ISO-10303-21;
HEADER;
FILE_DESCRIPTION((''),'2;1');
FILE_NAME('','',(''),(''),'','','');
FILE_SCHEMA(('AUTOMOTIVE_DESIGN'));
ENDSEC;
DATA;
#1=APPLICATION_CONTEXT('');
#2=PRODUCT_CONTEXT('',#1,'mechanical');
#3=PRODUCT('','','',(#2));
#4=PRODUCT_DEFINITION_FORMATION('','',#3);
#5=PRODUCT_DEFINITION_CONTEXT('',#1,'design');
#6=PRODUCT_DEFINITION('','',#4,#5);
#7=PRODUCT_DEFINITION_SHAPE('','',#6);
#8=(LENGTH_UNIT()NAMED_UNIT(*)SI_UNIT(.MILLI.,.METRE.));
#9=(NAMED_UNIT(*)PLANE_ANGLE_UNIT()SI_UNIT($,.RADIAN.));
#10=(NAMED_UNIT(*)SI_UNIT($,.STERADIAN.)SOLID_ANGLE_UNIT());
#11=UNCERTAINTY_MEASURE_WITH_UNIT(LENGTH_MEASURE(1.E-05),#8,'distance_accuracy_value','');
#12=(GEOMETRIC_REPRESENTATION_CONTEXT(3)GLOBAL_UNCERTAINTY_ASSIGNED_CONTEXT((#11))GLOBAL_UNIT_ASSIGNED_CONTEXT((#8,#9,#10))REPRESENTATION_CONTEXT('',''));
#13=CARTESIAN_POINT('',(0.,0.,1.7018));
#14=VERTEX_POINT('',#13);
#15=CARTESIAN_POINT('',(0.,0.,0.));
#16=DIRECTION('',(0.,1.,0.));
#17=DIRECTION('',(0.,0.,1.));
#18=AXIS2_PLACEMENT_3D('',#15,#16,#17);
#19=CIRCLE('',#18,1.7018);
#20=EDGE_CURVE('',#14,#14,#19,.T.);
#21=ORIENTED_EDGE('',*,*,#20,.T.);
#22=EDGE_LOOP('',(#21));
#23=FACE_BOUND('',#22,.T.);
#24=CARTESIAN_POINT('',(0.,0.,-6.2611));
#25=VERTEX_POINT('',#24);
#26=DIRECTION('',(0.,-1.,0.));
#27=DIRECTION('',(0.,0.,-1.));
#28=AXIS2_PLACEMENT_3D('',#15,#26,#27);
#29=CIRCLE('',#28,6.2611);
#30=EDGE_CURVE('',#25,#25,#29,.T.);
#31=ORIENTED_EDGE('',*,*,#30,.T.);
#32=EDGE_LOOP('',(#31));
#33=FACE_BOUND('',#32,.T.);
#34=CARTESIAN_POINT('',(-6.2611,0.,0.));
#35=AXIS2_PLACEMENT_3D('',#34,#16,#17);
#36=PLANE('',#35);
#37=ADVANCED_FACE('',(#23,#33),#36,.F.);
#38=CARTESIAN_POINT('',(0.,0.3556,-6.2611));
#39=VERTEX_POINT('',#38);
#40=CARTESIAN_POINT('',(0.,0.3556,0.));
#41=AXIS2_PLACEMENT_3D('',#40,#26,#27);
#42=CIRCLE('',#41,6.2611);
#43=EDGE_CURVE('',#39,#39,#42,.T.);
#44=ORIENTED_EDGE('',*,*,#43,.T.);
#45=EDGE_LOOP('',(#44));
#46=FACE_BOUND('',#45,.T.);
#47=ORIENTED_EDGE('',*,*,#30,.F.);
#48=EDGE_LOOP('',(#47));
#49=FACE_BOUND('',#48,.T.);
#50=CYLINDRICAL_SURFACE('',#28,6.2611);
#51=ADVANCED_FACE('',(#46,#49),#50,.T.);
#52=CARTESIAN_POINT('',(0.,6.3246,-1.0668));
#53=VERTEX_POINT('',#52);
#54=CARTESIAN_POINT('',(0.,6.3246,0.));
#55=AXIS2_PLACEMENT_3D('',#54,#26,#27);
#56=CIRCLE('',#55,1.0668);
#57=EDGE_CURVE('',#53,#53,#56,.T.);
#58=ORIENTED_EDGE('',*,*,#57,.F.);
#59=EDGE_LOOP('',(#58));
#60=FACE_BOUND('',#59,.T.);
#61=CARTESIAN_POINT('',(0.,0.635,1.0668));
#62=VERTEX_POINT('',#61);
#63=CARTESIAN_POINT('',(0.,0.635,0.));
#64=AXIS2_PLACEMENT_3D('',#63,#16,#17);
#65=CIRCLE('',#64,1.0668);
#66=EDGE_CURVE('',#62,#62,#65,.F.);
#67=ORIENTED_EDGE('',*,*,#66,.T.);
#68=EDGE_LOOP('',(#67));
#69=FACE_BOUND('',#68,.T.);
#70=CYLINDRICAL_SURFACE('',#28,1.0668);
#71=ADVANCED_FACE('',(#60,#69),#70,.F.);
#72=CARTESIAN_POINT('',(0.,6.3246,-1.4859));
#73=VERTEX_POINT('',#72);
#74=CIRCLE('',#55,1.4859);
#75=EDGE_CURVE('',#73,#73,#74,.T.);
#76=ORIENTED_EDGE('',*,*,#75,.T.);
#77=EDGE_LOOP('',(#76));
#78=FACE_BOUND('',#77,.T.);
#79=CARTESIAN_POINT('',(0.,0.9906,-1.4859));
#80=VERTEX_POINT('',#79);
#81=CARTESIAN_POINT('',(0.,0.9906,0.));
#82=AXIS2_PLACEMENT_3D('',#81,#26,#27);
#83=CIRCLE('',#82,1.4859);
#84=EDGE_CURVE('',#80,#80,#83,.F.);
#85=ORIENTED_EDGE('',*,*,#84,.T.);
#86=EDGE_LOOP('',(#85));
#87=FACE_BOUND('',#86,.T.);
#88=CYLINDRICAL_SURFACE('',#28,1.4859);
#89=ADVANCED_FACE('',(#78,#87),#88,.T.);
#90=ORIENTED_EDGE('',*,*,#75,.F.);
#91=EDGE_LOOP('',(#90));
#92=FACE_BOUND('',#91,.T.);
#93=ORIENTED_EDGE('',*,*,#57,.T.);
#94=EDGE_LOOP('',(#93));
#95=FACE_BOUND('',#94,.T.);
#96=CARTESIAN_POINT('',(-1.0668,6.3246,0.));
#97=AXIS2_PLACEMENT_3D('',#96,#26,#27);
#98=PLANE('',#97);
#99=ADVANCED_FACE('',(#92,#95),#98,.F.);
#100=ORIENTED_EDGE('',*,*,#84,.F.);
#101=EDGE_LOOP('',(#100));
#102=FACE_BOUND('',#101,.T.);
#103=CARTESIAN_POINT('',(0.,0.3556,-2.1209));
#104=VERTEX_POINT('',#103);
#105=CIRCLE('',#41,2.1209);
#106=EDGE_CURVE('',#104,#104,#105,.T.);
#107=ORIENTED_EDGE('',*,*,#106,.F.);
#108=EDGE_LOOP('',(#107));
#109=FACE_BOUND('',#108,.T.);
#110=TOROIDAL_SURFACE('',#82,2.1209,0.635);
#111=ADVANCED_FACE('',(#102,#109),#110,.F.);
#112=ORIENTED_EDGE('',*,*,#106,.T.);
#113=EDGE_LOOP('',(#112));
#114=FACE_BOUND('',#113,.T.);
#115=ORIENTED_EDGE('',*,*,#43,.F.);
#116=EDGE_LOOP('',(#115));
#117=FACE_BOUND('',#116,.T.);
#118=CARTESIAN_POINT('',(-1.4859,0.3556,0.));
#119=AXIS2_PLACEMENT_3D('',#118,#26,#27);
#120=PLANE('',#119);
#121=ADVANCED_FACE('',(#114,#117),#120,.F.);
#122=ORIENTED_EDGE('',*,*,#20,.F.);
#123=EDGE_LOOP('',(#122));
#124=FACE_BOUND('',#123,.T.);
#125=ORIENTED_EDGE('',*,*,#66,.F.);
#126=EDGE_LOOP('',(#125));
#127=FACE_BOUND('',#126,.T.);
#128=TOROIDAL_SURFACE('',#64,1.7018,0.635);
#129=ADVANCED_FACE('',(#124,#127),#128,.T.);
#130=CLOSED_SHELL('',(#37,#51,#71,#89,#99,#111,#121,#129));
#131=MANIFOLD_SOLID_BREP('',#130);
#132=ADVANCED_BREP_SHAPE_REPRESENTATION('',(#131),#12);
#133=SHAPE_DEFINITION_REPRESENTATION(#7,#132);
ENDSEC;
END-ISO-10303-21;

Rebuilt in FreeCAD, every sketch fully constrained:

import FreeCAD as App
import Part
import Sketcher

V = App.Vector
Q = App.Units.Quantity


def edges_at(feature, points):
    """Names of the edges that pass closest to the given points."""
    edges = feature.Shape.Edges
    near = lambda p: min(range(len(edges)), key=lambda i: edges[i].distToShape(Part.Vertex(*p))[0])
    return sorted({f"Edge{near(p) + 1}" for p in points})

doc = App.newDocument("Part")
body = doc.addObject("PartDesign::Body", "Body")

sketch1 = body.newObject("Sketcher::SketchObject", "Sketch")
sketch1.AttachmentSupport = (doc.getObject("XY_Plane"), [""])
sketch1.MapMode = "FlatFace"
sketch1.addGeometry([
    Part.LineSegment(V(-1.07, 0, 0), V(-1.07, 6.32, 0)),
    Part.LineSegment(V(-1.07, 6.32, 0), V(-1.49, 6.32, 0)),
    Part.LineSegment(V(-1.49, 6.32, 0), V(-1.49, 0.36, 0)),
    Part.LineSegment(V(-1.49, 0.36, 0), V(-6.26, 0.36, 0)),
    Part.LineSegment(V(-6.26, 0.36, 0), V(-6.26, 0, 0)),
    Part.LineSegment(V(-6.26, 0, 0), V(-1.07, 0, 0)),
], False)
sketch1.addConstraint([
    Sketcher.Constraint("Coincident", 0, 2, 1, 1),
    Sketcher.Constraint("Coincident", 1, 2, 2, 1),
    Sketcher.Constraint("Coincident", 2, 2, 3, 1),
    Sketcher.Constraint("Coincident", 3, 2, 4, 1),
    Sketcher.Constraint("Coincident", 4, 2, 5, 1),
    Sketcher.Constraint("Coincident", 5, 2, 0, 1),
    Sketcher.Constraint("Vertical", 0),
    Sketcher.Constraint("Horizontal", 1),
    Sketcher.Constraint("Vertical", 2),
    Sketcher.Constraint("Horizontal", 3),
    Sketcher.Constraint("Vertical", 4),
    Sketcher.Constraint("Horizontal", 5),
    Sketcher.Constraint("PointOnObject", 4, 2, -1),
    Sketcher.Constraint("DistanceX", 3, 2, 3, 1, Q("0.188 in")),
    Sketcher.Constraint("DistanceY", 0, 1, 0, 2, Q("0.249 in")),
    Sketcher.Constraint("DistanceY", 2, 2, 2, 1, Q("0.235 in")),
    Sketcher.Constraint("DistanceX", 1, 2, 1, 1, Q("0.0165 in")),
    Sketcher.Constraint("DistanceX", 0, 2, -1, 1, Q("0.042 in")),
])
revolution = body.newObject("PartDesign::Revolution", "Revolution")
revolution.Profile = sketch1
revolution.ReferenceAxis = (sketch1, ["V_Axis"])
revolution.Angle = 360
doc.recompute()

fillet = body.newObject("PartDesign::Fillet", "Fillet")
fillet.Base = (revolution, edges_at(revolution, [(0, 0.356, 1.486), (0, 0, 1.067)]))
fillet.Radius = Q("0.025 in")

doc.recompute()
